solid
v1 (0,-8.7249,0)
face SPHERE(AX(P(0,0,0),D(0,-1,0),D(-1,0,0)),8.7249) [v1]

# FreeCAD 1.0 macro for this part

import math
import FreeCAD as App
import Part
import Sketcher

V = App.Vector
Q = App.Units.Quantity

doc = App.newDocument("Part")
body = doc.addObject("PartDesign::Body", "Body")

# Sketch on XY plane
sketch1 = body.newObject("Sketcher::SketchObject", "Sketch")
sketch1.AttachmentSupport = (doc.getObject("XY_Plane"), [""])
sketch1.MapMode = "FlatFace"
sketch1.addGeometry(Part.LineSegment(V(0, -9, 0), V(0, 9, 0)), False)
sketch1.addGeometry(Part.ArcOfCircle(Part.Circle(V(0, 0, 0), V(0, 0, 1), 9), math.radians(90), math.radians(270)), False)
sketch1.addConstraint(Sketcher.Constraint("Coincident", 0, 1, 1, 2))
sketch1.addConstraint(Sketcher.Constraint("Coincident", 1, 1, 0, 2))
sketch1.addConstraint(Sketcher.Constraint("Vertical", 0))
sketch1.addConstraint(Sketcher.Constraint("Coincident", 1, 3, -1, 1))
sketch1.addConstraint(Sketcher.Constraint("PointOnObject", 0, 1, -2))
sketch1.addConstraint(Sketcher.Constraint("Radius", 1, Q("0.3435 in")))
revolution = body.newObject("PartDesign::Revolution", "Revolution")
revolution.Profile = sketch1
revolution.ReferenceAxis = (sketch1, ["V_Axis"])
revolution.Angle = 360

doc.recompute()
